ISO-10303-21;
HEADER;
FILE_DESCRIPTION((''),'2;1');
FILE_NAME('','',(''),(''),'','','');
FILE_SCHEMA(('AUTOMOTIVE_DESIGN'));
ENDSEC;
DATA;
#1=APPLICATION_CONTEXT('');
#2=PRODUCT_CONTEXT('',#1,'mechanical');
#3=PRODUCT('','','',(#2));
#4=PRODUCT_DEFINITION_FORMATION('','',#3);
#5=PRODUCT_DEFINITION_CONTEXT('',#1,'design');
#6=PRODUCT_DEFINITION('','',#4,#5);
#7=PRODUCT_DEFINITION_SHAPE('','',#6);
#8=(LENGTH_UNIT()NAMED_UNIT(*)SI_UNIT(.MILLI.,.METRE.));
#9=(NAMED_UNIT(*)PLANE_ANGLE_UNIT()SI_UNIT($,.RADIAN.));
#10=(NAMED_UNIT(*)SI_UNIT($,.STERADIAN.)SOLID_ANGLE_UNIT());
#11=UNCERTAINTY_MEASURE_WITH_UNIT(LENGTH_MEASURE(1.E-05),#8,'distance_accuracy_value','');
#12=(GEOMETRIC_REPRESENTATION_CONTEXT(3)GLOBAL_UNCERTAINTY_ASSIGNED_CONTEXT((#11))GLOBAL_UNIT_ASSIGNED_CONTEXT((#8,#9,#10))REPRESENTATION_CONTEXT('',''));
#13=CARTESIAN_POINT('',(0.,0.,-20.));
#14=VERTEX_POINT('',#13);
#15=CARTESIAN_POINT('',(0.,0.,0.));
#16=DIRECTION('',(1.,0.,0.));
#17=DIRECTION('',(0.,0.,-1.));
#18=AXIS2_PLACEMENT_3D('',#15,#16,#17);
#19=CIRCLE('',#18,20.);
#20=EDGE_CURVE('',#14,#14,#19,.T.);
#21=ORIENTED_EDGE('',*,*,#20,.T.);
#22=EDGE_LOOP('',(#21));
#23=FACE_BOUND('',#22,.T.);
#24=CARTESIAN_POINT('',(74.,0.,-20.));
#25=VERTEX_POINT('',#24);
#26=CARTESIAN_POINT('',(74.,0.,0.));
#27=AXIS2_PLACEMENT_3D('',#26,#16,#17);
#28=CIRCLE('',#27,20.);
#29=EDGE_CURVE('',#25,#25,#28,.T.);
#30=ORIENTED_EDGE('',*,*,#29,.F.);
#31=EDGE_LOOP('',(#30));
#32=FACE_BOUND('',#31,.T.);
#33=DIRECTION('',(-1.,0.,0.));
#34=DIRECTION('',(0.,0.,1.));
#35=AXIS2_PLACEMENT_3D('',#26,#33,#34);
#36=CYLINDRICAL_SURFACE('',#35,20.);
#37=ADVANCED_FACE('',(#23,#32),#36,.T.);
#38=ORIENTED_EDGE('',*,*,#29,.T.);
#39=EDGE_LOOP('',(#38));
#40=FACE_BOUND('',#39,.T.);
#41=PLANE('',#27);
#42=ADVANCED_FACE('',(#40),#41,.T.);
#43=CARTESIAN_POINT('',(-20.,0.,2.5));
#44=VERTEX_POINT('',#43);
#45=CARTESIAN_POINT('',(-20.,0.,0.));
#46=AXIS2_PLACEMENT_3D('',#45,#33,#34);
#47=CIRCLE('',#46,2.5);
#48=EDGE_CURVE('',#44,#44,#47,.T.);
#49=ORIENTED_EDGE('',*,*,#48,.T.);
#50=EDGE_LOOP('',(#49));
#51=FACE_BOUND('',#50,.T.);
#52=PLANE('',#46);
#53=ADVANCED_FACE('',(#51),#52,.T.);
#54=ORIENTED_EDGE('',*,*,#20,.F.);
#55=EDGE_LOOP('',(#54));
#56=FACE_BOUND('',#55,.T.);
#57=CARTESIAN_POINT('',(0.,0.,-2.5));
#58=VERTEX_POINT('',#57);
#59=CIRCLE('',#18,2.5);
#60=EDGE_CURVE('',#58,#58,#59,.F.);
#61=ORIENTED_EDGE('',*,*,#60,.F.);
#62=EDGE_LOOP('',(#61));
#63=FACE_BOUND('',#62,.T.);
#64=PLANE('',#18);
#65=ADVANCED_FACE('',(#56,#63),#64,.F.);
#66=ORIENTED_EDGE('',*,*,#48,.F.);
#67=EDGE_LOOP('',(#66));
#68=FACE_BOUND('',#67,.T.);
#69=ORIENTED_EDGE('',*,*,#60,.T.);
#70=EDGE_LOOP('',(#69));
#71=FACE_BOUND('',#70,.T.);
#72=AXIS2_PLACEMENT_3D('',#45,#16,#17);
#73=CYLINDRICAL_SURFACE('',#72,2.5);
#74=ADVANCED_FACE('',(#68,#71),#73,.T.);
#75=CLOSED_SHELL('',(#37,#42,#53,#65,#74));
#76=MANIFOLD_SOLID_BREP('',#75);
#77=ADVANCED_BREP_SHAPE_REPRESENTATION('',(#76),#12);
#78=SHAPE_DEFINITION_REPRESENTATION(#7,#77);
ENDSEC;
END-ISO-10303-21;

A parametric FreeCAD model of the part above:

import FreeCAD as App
import Part
import Sketcher

V = App.Vector
Q = App.Units.Quantity

doc = App.newDocument("Part")
body = doc.addObject("PartDesign::Body", "Body")

sketch1 = body.newObject("Sketcher::SketchObject", "Sketch")
sketch1.AttachmentSupport = (doc.getObject("YZ_Plane"), [""])
sketch1.MapMode = "FlatFace"
sketch1.addGeometry(Part.Circle(V(0, 0, 0), V(0, 0, 1), 20), False)
sketch1.addConstraint(Sketcher.Constraint("Coincident", 0, 3, -1, 1))
sketch1.addConstraint(Sketcher.Constraint("Diameter", 0, Q("40 mm")))
pad1 = body.newObject("PartDesign::Pad", "Pad")
pad1.Profile = sketch1
pad1.Length = 74

sketch2 = body.newObject("Sketcher::SketchObject", "Sketch001")
sketch2.AttachmentSupport = (doc.getObject("YZ_Plane"), [""])
sketch2.MapMode = "FlatFace"
sketch2.addGeometry(Part.Circle(V(0, 0, 0), V(0, 0, 1), 2.5), False)
sketch2.addConstraint(Sketcher.Constraint("Coincident", 0, 3, -1, 1))
sketch2.addConstraint(Sketcher.Constraint("Diameter", 0, Q("5 mm")))
pad2 = body.newObject("PartDesign::Pad", "Pad001")
pad2.Profile = sketch2
pad2.Length = 20
pad2.Reversed = True

doc.recompute()
